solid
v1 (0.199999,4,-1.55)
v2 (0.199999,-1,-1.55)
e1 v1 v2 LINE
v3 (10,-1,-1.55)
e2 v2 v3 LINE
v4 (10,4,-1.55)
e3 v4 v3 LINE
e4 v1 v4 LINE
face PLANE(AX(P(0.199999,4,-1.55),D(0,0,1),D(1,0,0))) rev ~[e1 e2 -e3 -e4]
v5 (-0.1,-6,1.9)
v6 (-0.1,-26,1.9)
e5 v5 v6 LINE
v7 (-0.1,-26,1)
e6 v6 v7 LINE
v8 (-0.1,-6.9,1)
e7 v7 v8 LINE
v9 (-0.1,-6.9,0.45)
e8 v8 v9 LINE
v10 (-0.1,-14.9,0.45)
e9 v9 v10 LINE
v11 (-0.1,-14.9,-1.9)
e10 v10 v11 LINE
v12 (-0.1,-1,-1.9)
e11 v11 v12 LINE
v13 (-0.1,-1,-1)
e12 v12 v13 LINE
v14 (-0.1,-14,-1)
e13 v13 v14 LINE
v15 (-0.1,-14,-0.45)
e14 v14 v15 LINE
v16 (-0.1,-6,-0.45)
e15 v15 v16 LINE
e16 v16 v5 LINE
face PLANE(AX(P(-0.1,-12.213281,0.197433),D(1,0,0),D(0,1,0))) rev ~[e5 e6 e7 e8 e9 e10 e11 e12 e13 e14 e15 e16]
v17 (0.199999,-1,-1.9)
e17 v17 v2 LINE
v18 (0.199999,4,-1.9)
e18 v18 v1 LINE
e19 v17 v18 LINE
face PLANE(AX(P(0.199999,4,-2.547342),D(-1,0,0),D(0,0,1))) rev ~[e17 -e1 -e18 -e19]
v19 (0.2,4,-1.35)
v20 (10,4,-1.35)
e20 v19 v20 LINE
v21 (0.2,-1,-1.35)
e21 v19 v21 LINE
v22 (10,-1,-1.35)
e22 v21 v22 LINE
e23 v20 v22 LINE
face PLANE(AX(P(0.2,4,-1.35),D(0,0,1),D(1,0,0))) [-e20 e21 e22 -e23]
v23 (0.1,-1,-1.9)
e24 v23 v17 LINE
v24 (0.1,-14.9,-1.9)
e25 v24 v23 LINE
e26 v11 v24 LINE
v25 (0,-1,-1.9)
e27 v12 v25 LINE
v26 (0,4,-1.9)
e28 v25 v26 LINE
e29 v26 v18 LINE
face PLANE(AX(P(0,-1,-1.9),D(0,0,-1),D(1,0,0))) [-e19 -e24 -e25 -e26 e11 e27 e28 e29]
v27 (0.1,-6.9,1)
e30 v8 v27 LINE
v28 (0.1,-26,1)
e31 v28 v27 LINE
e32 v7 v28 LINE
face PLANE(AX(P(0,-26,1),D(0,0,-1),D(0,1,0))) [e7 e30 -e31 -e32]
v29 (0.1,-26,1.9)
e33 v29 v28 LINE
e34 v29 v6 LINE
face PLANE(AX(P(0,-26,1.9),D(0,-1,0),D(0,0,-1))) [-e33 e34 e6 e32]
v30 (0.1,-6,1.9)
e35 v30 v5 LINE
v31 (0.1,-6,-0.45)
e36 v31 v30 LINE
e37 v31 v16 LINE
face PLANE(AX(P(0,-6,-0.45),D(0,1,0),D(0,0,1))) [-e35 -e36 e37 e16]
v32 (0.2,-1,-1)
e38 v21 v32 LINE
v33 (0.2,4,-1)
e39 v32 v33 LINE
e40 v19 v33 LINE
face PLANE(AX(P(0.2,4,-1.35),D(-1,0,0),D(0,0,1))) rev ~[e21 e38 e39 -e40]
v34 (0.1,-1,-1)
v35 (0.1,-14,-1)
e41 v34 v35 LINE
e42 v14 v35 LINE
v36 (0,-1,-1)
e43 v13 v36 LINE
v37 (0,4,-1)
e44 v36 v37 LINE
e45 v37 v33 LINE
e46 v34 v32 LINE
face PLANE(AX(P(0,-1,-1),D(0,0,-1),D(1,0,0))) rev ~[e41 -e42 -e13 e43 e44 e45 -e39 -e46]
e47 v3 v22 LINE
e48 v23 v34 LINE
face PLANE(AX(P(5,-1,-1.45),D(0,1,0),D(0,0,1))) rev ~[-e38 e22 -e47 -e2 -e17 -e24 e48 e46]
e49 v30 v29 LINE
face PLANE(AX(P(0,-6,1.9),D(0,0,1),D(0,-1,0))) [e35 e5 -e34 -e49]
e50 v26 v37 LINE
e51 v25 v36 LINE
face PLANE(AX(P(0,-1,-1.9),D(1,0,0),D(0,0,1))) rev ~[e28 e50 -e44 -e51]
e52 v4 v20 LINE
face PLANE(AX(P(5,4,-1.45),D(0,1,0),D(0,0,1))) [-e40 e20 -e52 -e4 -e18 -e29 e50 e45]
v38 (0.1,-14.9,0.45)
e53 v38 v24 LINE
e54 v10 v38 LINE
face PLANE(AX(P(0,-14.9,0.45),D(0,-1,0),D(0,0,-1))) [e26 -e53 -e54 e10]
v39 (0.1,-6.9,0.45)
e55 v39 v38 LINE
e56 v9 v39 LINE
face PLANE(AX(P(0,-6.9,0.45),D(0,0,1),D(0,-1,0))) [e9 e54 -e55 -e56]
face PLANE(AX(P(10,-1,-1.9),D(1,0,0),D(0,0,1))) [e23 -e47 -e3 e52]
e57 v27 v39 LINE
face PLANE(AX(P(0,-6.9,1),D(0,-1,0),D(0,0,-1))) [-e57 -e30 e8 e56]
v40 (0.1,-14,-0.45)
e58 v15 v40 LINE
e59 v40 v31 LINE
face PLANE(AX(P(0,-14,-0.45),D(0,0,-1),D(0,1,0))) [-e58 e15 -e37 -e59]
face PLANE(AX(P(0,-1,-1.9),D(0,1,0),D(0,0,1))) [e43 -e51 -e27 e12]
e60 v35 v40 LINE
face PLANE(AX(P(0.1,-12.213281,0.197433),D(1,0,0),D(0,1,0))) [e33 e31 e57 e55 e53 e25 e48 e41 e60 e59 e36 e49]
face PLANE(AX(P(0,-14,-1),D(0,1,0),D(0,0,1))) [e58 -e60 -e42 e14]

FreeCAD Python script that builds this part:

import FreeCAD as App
import Part
import Sketcher
from FreeCAD import Vector
Q = App.Units.Quantity

doc = App.newDocument("Part")
body = doc.addObject("PartDesign::Body", "Body")

# Sketch on YZ plane
sketch1 = body.newObject("Sketcher::SketchObject", "Sketch")
sketch1.AttachmentSupport = (doc.getObject("YZ_Plane"), [""])
sketch1.MapMode = "FlatFace"
sketch1.addGeometry([
    Part.LineSegment(Vector(-26, 1.9, 0), Vector(-26, 1, 0)),  # 0
    Part.LineSegment(Vector(-26, 1, 0), Vector(-6.9, 1, 0)),  # 1
    Part.LineSegment(Vector(-6.9, 1, 0), Vector(-6.9, 0.5, 0)),  # 2
    Part.LineSegment(Vector(-6.9, 0.5, 0), Vector(-14.9, 0.5, 0)),  # 3
    Part.LineSegment(Vector(-14.9, 0.5, 0), Vector(-14.9, -1.9, 0)),  # 4
    Part.LineSegment(Vector(-14.9, -1.9, 0), Vector(-1, -1.9, 0)),  # 5
    Part.LineSegment(Vector(-1, -1.9, 0), Vector(-1, -1, 0)),  # 6
    Part.LineSegment(Vector(-1, -1, 0), Vector(-14, -1, 0)),  # 7
    Part.LineSegment(Vector(-14, -1, 0), Vector(-14, -0.5, 0)),  # 8
    Part.LineSegment(Vector(-14, -0.5, 0), Vector(-6, -0.5, 0)),  # 9
    Part.LineSegment(Vector(-6, -0.5, 0), Vector(-6, 1.9, 0)),  # 10
    Part.LineSegment(Vector(-6, 1.9, 0), Vector(-26, 1.9, 0)),  # 11
], False)
sketch1.addConstraint([
    Sketcher.Constraint("Coincident", 0, 2, 1, 1),
    Sketcher.Constraint("Coincident", 1, 2, 2, 1),
    Sketcher.Constraint("Coincident", 2, 2, 3, 1),
    Sketcher.Constraint("Coincident", 3, 2, 4, 1),
    Sketcher.Constraint("Coincident", 4, 2, 5, 1),
    Sketcher.Constraint("Coincident", 5, 2, 6, 1),
    Sketcher.Constraint("Coincident", 6, 2, 7, 1),
    Sketcher.Constraint("Coincident", 7, 2, 8, 1),
    Sketcher.Constraint("Coincident", 8, 2, 9, 1),
    Sketcher.Constraint("Coincident", 9, 2, 10, 1),
    Sketcher.Constraint("Coincident", 10, 2, 11, 1),
    Sketcher.Constraint("Coincident", 11, 2, 0, 1),
    Sketcher.Constraint("Vertical", 0),
    Sketcher.Constraint("Horizontal", 1),
    Sketcher.Constraint("Vertical", 2),
    Sketcher.Constraint("Horizontal", 3),
    Sketcher.Constraint("Vertical", 4),
    Sketcher.Constraint("Horizontal", 5),
    Sketcher.Constraint("Vertical", 6),
    Sketcher.Constraint("Horizontal", 7),
    Sketcher.Constraint("Vertical", 8),
    Sketcher.Constraint("Horizontal", 9),
    Sketcher.Constraint("Vertical", 10),
    Sketcher.Constraint("Horizontal", 11),
    Sketcher.Constraint("Equal", 3, 9),
    Sketcher.Constraint("Equal", 0, 6),
    Sketcher.Constraint("Equal", 2, 8),
    Sketcher.Constraint("DistanceX", 3, 2, 3, 1, Q("8 mm")),
    Sketcher.Constraint("DistanceX", 7, 2, 7, 1, Q("13 mm")),
    Sketcher.Constraint("DistanceX", 11, 2, 11, 1, Q("20 mm")),
    Sketcher.Constraint("DistanceX", 1, 1, 1, 2, Q("19.1 mm")),
    Sketcher.Constraint("DistanceY", 0, 2, 0, 1, Q("0.9 mm")),
    Sketcher.Constraint("DistanceX", 0, 2, -1, 1, Q("26 mm")),
    Sketcher.Constraint("DistanceY", -1, 1, 0, 2, Q("1 mm")),
    Sketcher.Constraint("DistanceY", 6, 2, -1, 1, Q("1 mm")),
    Sketcher.Constraint("DistanceY", 2, 2, 2, 1, Q("0.55 mm")),
])
pad1 = body.newObject("PartDesign::Pad", "Pad")
pad1.Profile = sketch1
pad1.Length = 0.2
pad1.Midplane = True

# Sketch on XZ plane
sketch2 = body.newObject("Sketcher::SketchObject", "Sketch001")
sketch2.AttachmentSupport = (doc.getObject("XZ_Plane"), [""])
sketch2.MapMode = "FlatFace"
sketch2.AttachmentOffset = App.Placement(Vector(0, 0, 1), App.Rotation())
sketch2.addGeometry([
    Part.LineSegment(Vector(10, -1.9, 0), Vector(0, -1.9, 0)),
    Part.LineSegment(Vector(0, -1.9, 0), Vector(0, -1, 0)),
    Part.LineSegment(Vector(0, -1, 0), Vector(10, -1, 0)),
    Part.LineSegment(Vector(10, -1, 0), Vector(10, -1.9, 0)),
], False)
sketch2.addConstraint([
    Sketcher.Constraint("Coincident", 0, 2, 1, 1),
    Sketcher.Constraint("Coincident", 1, 2, 2, 1),
    Sketcher.Constraint("Coincident", 2, 2, 3, 1),
    Sketcher.Constraint("Coincident", 3, 2, 0, 1),
    Sketcher.Constraint("Horizontal", 0),
    Sketcher.Constraint("Vertical", 1),
    Sketcher.Constraint("Horizontal", 2),
    Sketcher.Constraint("Vertical", 3),
    Sketcher.Constraint("PointOnObject", 0, 2, -2),
    Sketcher.Constraint("DistanceX", 0, 2, 0, 1, Q("10 mm")),
    Sketcher.Constraint("DistanceY", 1, 1, 1, 2, Q("0.9 mm")),
    Sketcher.Constraint("DistanceY", 1, 2, -1, 1, Q("1 mm")),
])
pad2 = body.newObject("PartDesign::Pad", "Pad001")
pad2.Profile = sketch2
pad2.Length = 5
pad2.Reversed = True

# Sketch on XZ plane
sketch3 = body.newObject("Sketcher::SketchObject", "Sketch002")
sketch3.AttachmentSupport = (doc.getObject("XZ_Plane"), [""])
sketch3.MapMode = "FlatFace"
sketch3.AttachmentOffset = App.Placement(Vector(0, 0, -4), App.Rotation())
sketch3.addGeometry([
    Part.LineSegment(Vector(10.2, -1.4, 0), Vector(0.2, -1.4, 0)),  # 0
    Part.LineSegment(Vector(0.2, -1.4, 0), Vector(0.2, -0.7, 0)),  # 1
    Part.LineSegment(Vector(0.2, -0.7, 0), Vector(10.2, -0.7, 0)),  # 2
    Part.LineSegment(Vector(10.2, -0.7, 0), Vector(10.2, -1.4, 0)),  # 3
    Part.LineSegment(Vector(10.2, -2.5, 0), Vector(0.2, -2.5, 0)),  # 4
    Part.LineSegment(Vector(0.2, -2.5, 0), Vector(0.2, -1.6, 0)),  # 5
    Part.LineSegment(Vector(0.2, -1.6, 0), Vector(10.2, -1.6, 0)),  # 6
    Part.LineSegment(Vector(10.2, -1.6, 0), Vector(10.2, -2.5, 0)),  # 7
], False)
sketch3.addConstraint([
    Sketcher.Constraint("Coincident", 0, 2, 1, 1),
    Sketcher.Constraint("Coincident", 1, 2, 2, 1),
    Sketcher.Constraint("Coincident", 2, 2, 3, 1),
    Sketcher.Constraint("Coincident", 3, 2, 0, 1),
    Sketcher.Constraint("Coincident", 4, 2, 5, 1),
    Sketcher.Constraint("Coincident", 5, 2, 6, 1),
    Sketcher.Constraint("Coincident", 6, 2, 7, 1),
    Sketcher.Constraint("Coincident", 7, 2, 4, 1),
    Sketcher.Constraint("Horizontal", 0),
    Sketcher.Constraint("Vertical", 1),
    Sketcher.Constraint("Horizontal", 2),
    Sketcher.Constraint("Vertical", 3),
    Sketcher.Constraint("Horizontal", 4),
    Sketcher.Constraint("Vertical", 5),
    Sketcher.Constraint("Horizontal", 6),
    Sketcher.Constraint("Vertical", 7),
    Sketcher.Constraint("Vertical", 1, 2, 4, 2),
    Sketcher.Constraint("DistanceX", -1, 1, 0, 2, Q("0.2 mm")),
    Sketcher.Constraint("DistanceY", 5, 2, 0, 2, Q("0.2 mm")),
    Sketcher.Constraint("DistanceY", 0, 2, -1, 1, Q("1.35 mm")),
    Sketcher.Constraint("DistanceX", 4, 2, 4, 1, Q("10.046701 mm")),
    Sketcher.Constraint("DistanceY", 5, 1, 5, 2, Q("0.997342 mm")),
    Sketcher.Constraint("DistanceX", 0, 2, 0, 1, Q("10.010304 mm")),
    Sketcher.Constraint("DistanceY", 1, 1, 1, 2, Q("0.693804 mm")),
])
pocket1 = body.newObject("PartDesign::Pocket", "Pocket")
pocket1.Profile = sketch3
pocket1.Length = 5
pocket1.Reversed = True

doc.recompute()
